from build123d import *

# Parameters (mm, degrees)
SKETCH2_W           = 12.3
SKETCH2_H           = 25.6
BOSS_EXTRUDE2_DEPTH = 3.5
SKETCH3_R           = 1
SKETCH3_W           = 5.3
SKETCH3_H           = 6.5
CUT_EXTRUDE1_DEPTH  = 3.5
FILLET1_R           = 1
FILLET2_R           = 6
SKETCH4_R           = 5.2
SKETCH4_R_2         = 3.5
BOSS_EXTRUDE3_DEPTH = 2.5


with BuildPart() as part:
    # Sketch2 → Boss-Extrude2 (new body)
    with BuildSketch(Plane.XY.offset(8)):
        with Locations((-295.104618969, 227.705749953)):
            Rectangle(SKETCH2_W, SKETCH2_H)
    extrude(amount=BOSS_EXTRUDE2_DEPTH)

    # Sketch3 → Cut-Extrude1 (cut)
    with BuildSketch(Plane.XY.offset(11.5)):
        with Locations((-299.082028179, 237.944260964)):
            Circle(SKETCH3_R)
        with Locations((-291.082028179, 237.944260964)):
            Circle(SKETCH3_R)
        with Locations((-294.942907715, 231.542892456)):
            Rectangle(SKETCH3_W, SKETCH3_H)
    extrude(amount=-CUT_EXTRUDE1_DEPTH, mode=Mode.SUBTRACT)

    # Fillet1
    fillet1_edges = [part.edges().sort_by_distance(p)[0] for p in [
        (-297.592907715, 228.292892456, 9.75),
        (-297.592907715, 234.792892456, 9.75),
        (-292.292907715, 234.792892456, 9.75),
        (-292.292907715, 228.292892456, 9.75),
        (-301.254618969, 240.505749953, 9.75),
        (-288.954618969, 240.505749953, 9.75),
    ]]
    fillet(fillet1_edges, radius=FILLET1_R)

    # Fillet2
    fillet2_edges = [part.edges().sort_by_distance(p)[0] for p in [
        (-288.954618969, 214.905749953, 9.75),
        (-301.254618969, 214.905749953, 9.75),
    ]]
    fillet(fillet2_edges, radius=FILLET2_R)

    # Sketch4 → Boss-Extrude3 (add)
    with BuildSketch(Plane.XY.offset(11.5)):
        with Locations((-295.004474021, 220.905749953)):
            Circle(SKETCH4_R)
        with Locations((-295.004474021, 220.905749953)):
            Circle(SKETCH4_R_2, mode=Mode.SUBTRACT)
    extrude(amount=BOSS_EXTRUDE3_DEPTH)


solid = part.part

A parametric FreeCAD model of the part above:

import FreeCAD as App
import Part
import Sketcher

V = App.Vector
Q = App.Units.Quantity


def edges_at(feature, points):
    """Names of the edges that pass closest to the given points."""
    edges = feature.Shape.Edges
    near = lambda p: min(range(len(edges)), key=lambda i: edges[i].distToShape(Part.Vertex(*p))[0])
    return sorted({f"Edge{near(p) + 1}" for p in points})


def add_polygon(sketch, points):
    """Adds a closed chain of lines whose ends are joined by coincident constraints."""
    first, n = sketch.GeometryCount, len(points)
    for a, b in zip(points, points[1:] + points[:1]):
        sketch.addGeometry(Part.LineSegment(App.Vector(*a, 0), App.Vector(*b, 0)), False)
    for i in range(n):
        sketch.addConstraint(Sketcher.Constraint("Coincident", first + i, 2, first + (i + 1) % n, 1))

doc = App.newDocument("Part")
body = doc.addObject("PartDesign::Body", "Body")

sketch1 = body.newObject("Sketcher::SketchObject", "Sketch")
sketch1.AttachmentSupport = (doc.getObject("XY_Plane"), [""])
sketch1.MapMode = "FlatFace"
sketch1.AttachmentOffset = App.Placement(V(0, 0, 8), App.Rotation())
add_polygon(sketch1, [(-301.254619, 240.50575), (-301.254619, 214.90575), (-288.954619, 214.90575), (-288.954619, 240.50575)])
sketch1.addConstraint(Sketcher.Constraint("Vertical", 0))
sketch1.addConstraint(Sketcher.Constraint("Horizontal", 1))
sketch1.addConstraint(Sketcher.Constraint("Vertical", 2))
sketch1.addConstraint(Sketcher.Constraint("Horizontal", 3))
sketch1.addConstraint(Sketcher.Constraint("DistanceX", 1, 1, 1, 2, Q("12.3 mm")))
sketch1.addConstraint(Sketcher.Constraint("DistanceY", 0, 2, 0, 1, Q("25.6 mm")))
sketch1.addConstraint(Sketcher.Constraint("DistanceX", 0, 2, -1, 1, Q("301.254619 mm")))
sketch1.addConstraint(Sketcher.Constraint("DistanceY", -1, 1, 0, 2, Q("214.90575 mm")))
pad1 = body.newObject("PartDesign::Pad", "Pad")
pad1.Profile = sketch1
pad1.Length = 3.5

sketch2 = body.newObject("Sketcher::SketchObject", "Sketch001")
sketch2.AttachmentSupport = (doc.getObject("XY_Plane"), [""])
sketch2.MapMode = "FlatFace"
sketch2.AttachmentOffset = App.Placement(V(0, 0, 11.5), App.Rotation())
sketch2.addGeometry(Part.Circle(V(-299.082028, 237.944261, 0), V(0, 0, 1), 1), False)
sketch2.addGeometry(Part.Circle(V(-291.082028, 237.944261, 0), V(0, 0, 1), 1), False)
add_polygon(sketch2, [(-297.592908, 234.792892), (-297.592908, 228.292892), (-292.292908, 228.292892), (-292.292908, 234.792892)])
sketch2.addConstraint(Sketcher.Constraint("Vertical", 2))
sketch2.addConstraint(Sketcher.Constraint("Horizontal", 3))
sketch2.addConstraint(Sketcher.Constraint("Vertical", 4))
sketch2.addConstraint(Sketcher.Constraint("Horizontal", 5))
sketch2.addConstraint(Sketcher.Constraint("Equal", 0, 1))
sketch2.addConstraint(Sketcher.Constraint("Horizontal", 0, 3, 1, 3))
sketch2.addConstraint(Sketcher.Constraint("Diameter", 0, Q("2 mm")))
sketch2.addConstraint(Sketcher.Constraint("DistanceX", 3, 1, 3, 2, Q("5.3 mm")))
sketch2.addConstraint(Sketcher.Constraint("DistanceY", 2, 2, 2, 1, Q("6.5 mm")))
sketch2.addConstraint(Sketcher.Constraint("DistanceX", 0, 3, 1, 3, Q("8 mm")))
sketch2.addConstraint(Sketcher.Constraint("DistanceX", 0, 3, -1, 1, Q("299.082028 mm")))
sketch2.addConstraint(Sketcher.Constraint("DistanceY", -1, 1, 0, 3, Q("237.944261 mm")))
sketch2.addConstraint(Sketcher.Constraint("DistanceX", 0, 3, 2, 2, Q("1.48912 mm")))
sketch2.addConstraint(Sketcher.Constraint("DistanceY", 2, 2, 0, 3, Q("9.651369 mm")))
pocket1 = body.newObject("PartDesign::Pocket", "Pocket")
pocket1.Profile = sketch2
pocket1.Length = 3.5
doc.recompute()

fillet = body.newObject("PartDesign::Fillet", "Fillet")
fillet.Base = (pocket1, edges_at(pocket1, [
    (-297.593, 228.293, 9.75),
    (-297.593, 234.793, 9.75),
    (-292.293, 234.793, 9.75),
    (-292.293, 228.293, 9.75),
    (-301.255, 240.506, 9.75),
    (-288.955, 240.506, 9.75),
]))
fillet.Radius = 1
doc.recompute()

fillet2 = body.newObject("PartDesign::Fillet", "Fillet001")
fillet2.Base = (fillet, edges_at(fillet, [(-288.955, 214.906, 9.75), (-301.255, 214.906, 9.75)]))
fillet2.Radius = 6

sketch3 = body.newObject("Sketcher::SketchObject", "Sketch002")
sketch3.AttachmentSupport = (doc.getObject("XY_Plane"), [""])
sketch3.MapMode = "FlatFace"
sketch3.AttachmentOffset = App.Placement(V(0, 0, 11.5), App.Rotation())
sketch3.addGeometry(Part.Circle(V(-295.004474, 220.90575, 0), V(0, 0, 1), 5.2), False)
sketch3.addGeometry(Part.Circle(V(-295.004474, 220.90575, 0), V(0, 0, 1), 3.5), False)
sketch3.addConstraint(Sketcher.Constraint("Coincident", 1, 3, 0, 3))
sketch3.addConstraint(Sketcher.Constraint("Diameter", 1, Q("7 mm")))
sketch3.addConstraint(Sketcher.Constraint("Diameter", 0, Q("10.4 mm")))
sketch3.addConstraint(Sketcher.Constraint("DistanceY", -1, 1, 0, 3, Q("220.90575 mm")))
sketch3.addConstraint(Sketcher.Constraint("DistanceX", 0, 3, -1, 1, Q("295.004474 mm")))
pad2 = body.newObject("PartDesign::Pad", "Pad001")
pad2.Profile = sketch3
pad2.Length = 2.5

doc.recompute()
